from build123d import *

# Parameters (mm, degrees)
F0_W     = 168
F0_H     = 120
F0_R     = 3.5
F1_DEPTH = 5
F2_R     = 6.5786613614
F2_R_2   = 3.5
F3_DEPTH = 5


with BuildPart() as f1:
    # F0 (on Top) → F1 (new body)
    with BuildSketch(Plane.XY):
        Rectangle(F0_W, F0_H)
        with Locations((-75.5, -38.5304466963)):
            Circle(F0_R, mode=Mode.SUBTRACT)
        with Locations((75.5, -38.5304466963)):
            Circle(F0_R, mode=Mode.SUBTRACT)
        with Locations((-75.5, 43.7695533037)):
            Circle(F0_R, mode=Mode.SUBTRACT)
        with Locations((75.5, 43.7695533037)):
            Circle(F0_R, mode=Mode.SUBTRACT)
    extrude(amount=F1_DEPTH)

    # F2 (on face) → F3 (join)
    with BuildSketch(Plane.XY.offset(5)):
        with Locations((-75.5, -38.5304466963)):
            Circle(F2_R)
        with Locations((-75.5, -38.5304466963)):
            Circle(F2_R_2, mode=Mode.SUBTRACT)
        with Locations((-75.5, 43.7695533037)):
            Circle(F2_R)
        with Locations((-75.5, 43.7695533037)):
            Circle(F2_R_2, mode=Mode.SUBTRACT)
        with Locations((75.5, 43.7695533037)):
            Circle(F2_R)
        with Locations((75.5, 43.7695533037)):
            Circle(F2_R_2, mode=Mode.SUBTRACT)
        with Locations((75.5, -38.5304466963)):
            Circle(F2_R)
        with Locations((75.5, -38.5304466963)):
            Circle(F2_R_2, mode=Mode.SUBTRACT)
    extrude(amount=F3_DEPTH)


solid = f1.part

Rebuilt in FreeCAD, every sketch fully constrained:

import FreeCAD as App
import Part
import Sketcher

doc = App.newDocument("Part")
body = doc.addObject("PartDesign::Body", "Body")

sketch1 = doc.addObject("Sketcher::SketchObject", "Sketch")
body.addObject(sketch1)
sketch1.AttachmentSupport = (doc.XY_Plane, [""])
sketch1.MapMode = "FlatFace"
sketch1.addGeometry([
    Part.LineSegment(App.Vector(-84, 60, 0), App.Vector(-84, -60, 0)),
    Part.LineSegment(App.Vector(-84, -60, 0), App.Vector(84, -60, 0)),
    Part.LineSegment(App.Vector(84, -60, 0), App.Vector(84, 60, 0)),
    Part.LineSegment(App.Vector(84, 60, 0), App.Vector(-84, 60, 0)),
    Part.Circle(App.Vector(-75.5, -38.5, 0), App.Vector(0, 0, 1), 3.5),
    Part.Circle(App.Vector(75.5, -38.5, 0), App.Vector(0, 0, 1), 3.5),
    Part.Circle(App.Vector(-75.5, 43.8, 0), App.Vector(0, 0, 1), 3.5),
    Part.Circle(App.Vector(75.5, 43.8, 0), App.Vector(0, 0, 1), 3.5),
], False)
sketch1.addConstraint([
    Sketcher.Constraint("Coincident", 0, 2, 1, 1),
    Sketcher.Constraint("Coincident", 1, 2, 2, 1),
    Sketcher.Constraint("Coincident", 2, 2, 3, 1),
    Sketcher.Constraint("Coincident", 3, 2, 0, 1),
    Sketcher.Constraint("Vertical", 0),
    Sketcher.Constraint("Horizontal", 1),
    Sketcher.Constraint("Vertical", 2),
    Sketcher.Constraint("Horizontal", 3),
    Sketcher.Constraint("Equal", 4, 5),
    Sketcher.Constraint("Equal", 5, 6),
    Sketcher.Constraint("Equal", 6, 7),
    Sketcher.Constraint("Symmetric", 0, 2, 2, 2, -1, 1),
    Sketcher.Constraint("Symmetric", 4, 3, 5, 3, -2),
    Sketcher.Constraint("Symmetric", 6, 3, 7, 3, -2),
    Sketcher.Constraint("Vertical", 4, 3, 6, 3),
    Sketcher.Constraint("Diameter", 4, 7.0),
    Sketcher.Constraint("DistanceX", 1, 1, 1, 2, 168.0),
    Sketcher.Constraint("DistanceY", 0, 2, 0, 1, 120.0),
    Sketcher.Constraint("DistanceX", 4, 3, 5, 3, 151.0),
    Sketcher.Constraint("DistanceY", 4, 3, 6, 3, 82.3),
    Sketcher.Constraint("DistanceY", 4, 3, -1, 1, 38.530447),
])
pad1 = doc.addObject("PartDesign::Pad", "Pad")
body.addObject(pad1)
pad1.Profile = sketch1
pad1.Length = 5

sketch2 = doc.addObject("Sketcher::SketchObject", "Sketch001")
body.addObject(sketch2)
sketch2.AttachmentSupport = (doc.XY_Plane, [""])
sketch2.MapMode = "FlatFace"
sketch2.AttachmentOffset = App.Placement(App.Vector(0, 0, 5), App.Rotation())
sketch2.addGeometry([
    Part.Circle(App.Vector(-75.5, -38.5, 0), App.Vector(0, 0, 1), 6.6),
    Part.Circle(App.Vector(-75.5, -38.5, 0), App.Vector(0, 0, 1), 3.5),
    Part.Circle(App.Vector(-75.5, 43.8, 0), App.Vector(0, 0, 1), 6.6),
    Part.Circle(App.Vector(-75.5, 43.8, 0), App.Vector(0, 0, 1), 3.5),
    Part.Circle(App.Vector(75.5, 43.8, 0), App.Vector(0, 0, 1), 6.6),
    Part.Circle(App.Vector(75.5, 43.8, 0), App.Vector(0, 0, 1), 3.5),
    Part.Circle(App.Vector(75.5, -38.5, 0), App.Vector(0, 0, 1), 6.6),
    Part.Circle(App.Vector(75.5, -38.5, 0), App.Vector(0, 0, 1), 3.5),
], False)
sketch2.addConstraint([
    Sketcher.Constraint("Coincident", 1, 3, 0, 3),
    Sketcher.Constraint("Coincident", 3, 3, 2, 3),
    Sketcher.Constraint("Coincident", 5, 3, 4, 3),
    Sketcher.Constraint("Coincident", 7, 3, 6, 3),
    Sketcher.Constraint("Equal", 0, 2),
    Sketcher.Constraint("Equal", 1, 3),
    Sketcher.Constraint("Equal", 2, 4),
    Sketcher.Constraint("Equal", 3, 5),
    Sketcher.Constraint("Equal", 4, 6),
    Sketcher.Constraint("Equal", 5, 7),
    Sketcher.Constraint("Symmetric", 2, 3, 4, 3, -2),
    Sketcher.Constraint("Symmetric", 0, 3, 6, 3, -2),
    Sketcher.Constraint("Vertical", 1, 3, 2, 3),
    Sketcher.Constraint("Diameter", 1, 7.0),
    Sketcher.Constraint("DistanceX", 2, 3, 4, 3, 151.0),
    Sketcher.Constraint("DistanceY", 0, 3, 2, 3, 82.3),
    Sketcher.Constraint("Diameter", 0, 13.157323),
    Sketcher.Constraint("DistanceY", 0, 3, -1, 1, 38.530447),
])
pad2 = doc.addObject("PartDesign::Pad", "Pad001")
body.addObject(pad2)
pad2.Profile = sketch2
pad2.Length = 5

doc.recompute()
